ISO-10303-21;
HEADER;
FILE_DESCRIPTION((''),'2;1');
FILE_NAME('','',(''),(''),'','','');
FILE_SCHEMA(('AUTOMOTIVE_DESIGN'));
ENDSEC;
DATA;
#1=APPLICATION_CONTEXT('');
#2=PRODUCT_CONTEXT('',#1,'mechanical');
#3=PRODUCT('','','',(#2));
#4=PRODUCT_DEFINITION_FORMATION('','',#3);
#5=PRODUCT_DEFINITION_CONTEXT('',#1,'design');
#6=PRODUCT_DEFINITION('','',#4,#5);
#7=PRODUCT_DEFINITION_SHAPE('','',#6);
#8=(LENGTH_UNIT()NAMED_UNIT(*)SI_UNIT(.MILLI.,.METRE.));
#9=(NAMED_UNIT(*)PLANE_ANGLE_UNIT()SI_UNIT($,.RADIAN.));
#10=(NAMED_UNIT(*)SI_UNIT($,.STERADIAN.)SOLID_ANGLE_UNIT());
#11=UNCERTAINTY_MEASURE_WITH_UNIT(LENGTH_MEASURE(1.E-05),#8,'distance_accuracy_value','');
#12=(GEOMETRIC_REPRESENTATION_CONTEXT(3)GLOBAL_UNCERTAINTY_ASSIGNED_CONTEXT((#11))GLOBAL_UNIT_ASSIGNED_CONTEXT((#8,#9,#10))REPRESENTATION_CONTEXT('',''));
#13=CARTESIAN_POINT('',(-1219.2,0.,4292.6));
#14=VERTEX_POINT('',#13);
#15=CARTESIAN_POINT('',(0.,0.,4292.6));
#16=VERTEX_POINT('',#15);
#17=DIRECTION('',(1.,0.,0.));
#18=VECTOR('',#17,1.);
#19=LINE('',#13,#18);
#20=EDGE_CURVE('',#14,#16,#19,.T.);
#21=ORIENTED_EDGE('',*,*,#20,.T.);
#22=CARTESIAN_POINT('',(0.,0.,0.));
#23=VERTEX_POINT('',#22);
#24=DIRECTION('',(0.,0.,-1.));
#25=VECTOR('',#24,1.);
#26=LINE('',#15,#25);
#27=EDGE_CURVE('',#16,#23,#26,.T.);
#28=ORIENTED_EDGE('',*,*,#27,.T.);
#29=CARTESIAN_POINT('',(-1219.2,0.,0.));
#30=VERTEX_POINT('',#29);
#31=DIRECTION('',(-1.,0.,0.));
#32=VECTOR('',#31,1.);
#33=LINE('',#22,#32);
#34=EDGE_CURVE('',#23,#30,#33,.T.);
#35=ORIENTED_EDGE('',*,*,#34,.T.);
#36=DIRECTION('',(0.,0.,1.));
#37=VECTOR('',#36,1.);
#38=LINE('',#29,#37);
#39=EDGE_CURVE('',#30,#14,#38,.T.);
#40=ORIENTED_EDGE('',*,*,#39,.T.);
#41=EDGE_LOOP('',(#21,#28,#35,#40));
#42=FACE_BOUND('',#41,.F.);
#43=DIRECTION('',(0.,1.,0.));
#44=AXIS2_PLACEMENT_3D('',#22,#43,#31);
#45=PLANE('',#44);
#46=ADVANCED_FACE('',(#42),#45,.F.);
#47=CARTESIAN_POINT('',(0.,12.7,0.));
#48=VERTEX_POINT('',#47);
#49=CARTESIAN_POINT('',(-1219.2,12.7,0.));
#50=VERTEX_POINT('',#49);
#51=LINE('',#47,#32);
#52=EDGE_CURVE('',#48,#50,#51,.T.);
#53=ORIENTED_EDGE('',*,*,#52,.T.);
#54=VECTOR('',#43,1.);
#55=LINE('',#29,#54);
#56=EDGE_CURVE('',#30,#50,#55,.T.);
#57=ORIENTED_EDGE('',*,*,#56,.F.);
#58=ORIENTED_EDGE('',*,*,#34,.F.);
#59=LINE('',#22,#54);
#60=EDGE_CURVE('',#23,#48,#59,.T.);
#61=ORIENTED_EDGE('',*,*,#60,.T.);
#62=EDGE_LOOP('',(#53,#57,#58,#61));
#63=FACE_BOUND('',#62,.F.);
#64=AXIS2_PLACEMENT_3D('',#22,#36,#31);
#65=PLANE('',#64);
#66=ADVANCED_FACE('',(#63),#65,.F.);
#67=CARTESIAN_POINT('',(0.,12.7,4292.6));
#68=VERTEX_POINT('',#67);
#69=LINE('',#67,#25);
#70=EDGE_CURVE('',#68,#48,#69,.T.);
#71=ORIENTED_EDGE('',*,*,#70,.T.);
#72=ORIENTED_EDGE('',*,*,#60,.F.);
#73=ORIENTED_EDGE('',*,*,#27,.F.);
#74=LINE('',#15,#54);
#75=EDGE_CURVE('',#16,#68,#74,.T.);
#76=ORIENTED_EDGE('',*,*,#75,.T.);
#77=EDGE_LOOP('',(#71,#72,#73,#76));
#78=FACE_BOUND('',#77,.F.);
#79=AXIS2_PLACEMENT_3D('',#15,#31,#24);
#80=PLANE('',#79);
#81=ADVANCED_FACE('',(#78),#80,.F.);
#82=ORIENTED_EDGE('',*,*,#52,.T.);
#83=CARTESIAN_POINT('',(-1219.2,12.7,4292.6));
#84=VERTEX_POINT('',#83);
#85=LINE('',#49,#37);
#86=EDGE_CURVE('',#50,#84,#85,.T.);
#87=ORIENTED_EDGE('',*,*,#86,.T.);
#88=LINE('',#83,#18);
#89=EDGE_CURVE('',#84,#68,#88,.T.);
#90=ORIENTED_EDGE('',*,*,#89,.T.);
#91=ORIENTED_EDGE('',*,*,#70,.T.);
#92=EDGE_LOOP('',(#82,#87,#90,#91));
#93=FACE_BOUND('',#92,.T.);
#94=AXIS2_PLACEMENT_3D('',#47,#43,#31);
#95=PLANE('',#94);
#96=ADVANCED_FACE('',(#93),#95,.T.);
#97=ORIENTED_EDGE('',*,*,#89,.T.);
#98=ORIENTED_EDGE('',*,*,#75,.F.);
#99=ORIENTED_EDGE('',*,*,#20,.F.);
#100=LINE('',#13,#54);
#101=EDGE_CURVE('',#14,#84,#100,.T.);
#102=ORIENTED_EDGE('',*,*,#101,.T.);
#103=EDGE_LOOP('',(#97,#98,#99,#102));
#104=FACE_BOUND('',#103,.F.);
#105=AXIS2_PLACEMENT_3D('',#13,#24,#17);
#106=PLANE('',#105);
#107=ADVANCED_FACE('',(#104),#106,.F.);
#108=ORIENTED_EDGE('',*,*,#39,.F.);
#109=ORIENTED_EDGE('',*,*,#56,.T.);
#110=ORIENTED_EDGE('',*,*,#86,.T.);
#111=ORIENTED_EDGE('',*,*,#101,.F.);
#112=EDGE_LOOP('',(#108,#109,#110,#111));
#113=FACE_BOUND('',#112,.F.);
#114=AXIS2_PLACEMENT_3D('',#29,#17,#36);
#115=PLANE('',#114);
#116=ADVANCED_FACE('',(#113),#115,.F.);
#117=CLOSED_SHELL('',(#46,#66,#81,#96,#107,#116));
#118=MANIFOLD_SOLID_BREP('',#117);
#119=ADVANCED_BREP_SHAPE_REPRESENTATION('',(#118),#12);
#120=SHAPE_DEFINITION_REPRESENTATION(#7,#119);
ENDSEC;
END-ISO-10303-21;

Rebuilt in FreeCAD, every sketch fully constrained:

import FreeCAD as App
import Part
import Sketcher
Q = App.Units.Quantity

doc = App.newDocument("Part")
body = doc.addObject("PartDesign::Body", "Body")

# Sketch on XZ plane
sketch1 = body.newObject("Sketcher::SketchObject", "Sketch")
sketch1.AttachmentSupport = (doc.getObject("XZ_Plane"), [""])
sketch1.MapMode = "FlatFace"
sketch1.addGeometry([
    Part.LineSegment(App.Vector(0, 4292.6, 0), App.Vector(0, 0, 0)),
    Part.LineSegment(App.Vector(0, 0, 0), App.Vector(-1219.2, 0, 0)),
    Part.LineSegment(App.Vector(-1219.2, 0, 0), App.Vector(-1219.2, 4292.6, 0)),
    Part.LineSegment(App.Vector(-1219.2, 4292.6, 0), App.Vector(0, 4292.6, 0)),
], False)
sketch1.addConstraint([
    Sketcher.Constraint("Coincident", 0, 2, 1, 1),
    Sketcher.Constraint("Coincident", 1, 2, 2, 1),
    Sketcher.Constraint("Coincident", 2, 2, 3, 1),
    Sketcher.Constraint("Coincident", 3, 2, 0, 1),
    Sketcher.Constraint("Vertical", 0),
    Sketcher.Constraint("Horizontal", 1),
    Sketcher.Constraint("Vertical", 2),
    Sketcher.Constraint("Horizontal", 3),
    Sketcher.Constraint("Coincident", 0, 2, -1, 1),
    Sketcher.Constraint("DistanceX", 1, 2, 1, 1, Q("48 in")),
    Sketcher.Constraint("DistanceY", 0, 2, 0, 1, Q("169 in")),
])
pad1 = body.newObject("PartDesign::Pad", "Pad")
pad1.Profile = sketch1
pad1.Length = Q("0.5 in")
pad1.Reversed = True

doc.recompute()
